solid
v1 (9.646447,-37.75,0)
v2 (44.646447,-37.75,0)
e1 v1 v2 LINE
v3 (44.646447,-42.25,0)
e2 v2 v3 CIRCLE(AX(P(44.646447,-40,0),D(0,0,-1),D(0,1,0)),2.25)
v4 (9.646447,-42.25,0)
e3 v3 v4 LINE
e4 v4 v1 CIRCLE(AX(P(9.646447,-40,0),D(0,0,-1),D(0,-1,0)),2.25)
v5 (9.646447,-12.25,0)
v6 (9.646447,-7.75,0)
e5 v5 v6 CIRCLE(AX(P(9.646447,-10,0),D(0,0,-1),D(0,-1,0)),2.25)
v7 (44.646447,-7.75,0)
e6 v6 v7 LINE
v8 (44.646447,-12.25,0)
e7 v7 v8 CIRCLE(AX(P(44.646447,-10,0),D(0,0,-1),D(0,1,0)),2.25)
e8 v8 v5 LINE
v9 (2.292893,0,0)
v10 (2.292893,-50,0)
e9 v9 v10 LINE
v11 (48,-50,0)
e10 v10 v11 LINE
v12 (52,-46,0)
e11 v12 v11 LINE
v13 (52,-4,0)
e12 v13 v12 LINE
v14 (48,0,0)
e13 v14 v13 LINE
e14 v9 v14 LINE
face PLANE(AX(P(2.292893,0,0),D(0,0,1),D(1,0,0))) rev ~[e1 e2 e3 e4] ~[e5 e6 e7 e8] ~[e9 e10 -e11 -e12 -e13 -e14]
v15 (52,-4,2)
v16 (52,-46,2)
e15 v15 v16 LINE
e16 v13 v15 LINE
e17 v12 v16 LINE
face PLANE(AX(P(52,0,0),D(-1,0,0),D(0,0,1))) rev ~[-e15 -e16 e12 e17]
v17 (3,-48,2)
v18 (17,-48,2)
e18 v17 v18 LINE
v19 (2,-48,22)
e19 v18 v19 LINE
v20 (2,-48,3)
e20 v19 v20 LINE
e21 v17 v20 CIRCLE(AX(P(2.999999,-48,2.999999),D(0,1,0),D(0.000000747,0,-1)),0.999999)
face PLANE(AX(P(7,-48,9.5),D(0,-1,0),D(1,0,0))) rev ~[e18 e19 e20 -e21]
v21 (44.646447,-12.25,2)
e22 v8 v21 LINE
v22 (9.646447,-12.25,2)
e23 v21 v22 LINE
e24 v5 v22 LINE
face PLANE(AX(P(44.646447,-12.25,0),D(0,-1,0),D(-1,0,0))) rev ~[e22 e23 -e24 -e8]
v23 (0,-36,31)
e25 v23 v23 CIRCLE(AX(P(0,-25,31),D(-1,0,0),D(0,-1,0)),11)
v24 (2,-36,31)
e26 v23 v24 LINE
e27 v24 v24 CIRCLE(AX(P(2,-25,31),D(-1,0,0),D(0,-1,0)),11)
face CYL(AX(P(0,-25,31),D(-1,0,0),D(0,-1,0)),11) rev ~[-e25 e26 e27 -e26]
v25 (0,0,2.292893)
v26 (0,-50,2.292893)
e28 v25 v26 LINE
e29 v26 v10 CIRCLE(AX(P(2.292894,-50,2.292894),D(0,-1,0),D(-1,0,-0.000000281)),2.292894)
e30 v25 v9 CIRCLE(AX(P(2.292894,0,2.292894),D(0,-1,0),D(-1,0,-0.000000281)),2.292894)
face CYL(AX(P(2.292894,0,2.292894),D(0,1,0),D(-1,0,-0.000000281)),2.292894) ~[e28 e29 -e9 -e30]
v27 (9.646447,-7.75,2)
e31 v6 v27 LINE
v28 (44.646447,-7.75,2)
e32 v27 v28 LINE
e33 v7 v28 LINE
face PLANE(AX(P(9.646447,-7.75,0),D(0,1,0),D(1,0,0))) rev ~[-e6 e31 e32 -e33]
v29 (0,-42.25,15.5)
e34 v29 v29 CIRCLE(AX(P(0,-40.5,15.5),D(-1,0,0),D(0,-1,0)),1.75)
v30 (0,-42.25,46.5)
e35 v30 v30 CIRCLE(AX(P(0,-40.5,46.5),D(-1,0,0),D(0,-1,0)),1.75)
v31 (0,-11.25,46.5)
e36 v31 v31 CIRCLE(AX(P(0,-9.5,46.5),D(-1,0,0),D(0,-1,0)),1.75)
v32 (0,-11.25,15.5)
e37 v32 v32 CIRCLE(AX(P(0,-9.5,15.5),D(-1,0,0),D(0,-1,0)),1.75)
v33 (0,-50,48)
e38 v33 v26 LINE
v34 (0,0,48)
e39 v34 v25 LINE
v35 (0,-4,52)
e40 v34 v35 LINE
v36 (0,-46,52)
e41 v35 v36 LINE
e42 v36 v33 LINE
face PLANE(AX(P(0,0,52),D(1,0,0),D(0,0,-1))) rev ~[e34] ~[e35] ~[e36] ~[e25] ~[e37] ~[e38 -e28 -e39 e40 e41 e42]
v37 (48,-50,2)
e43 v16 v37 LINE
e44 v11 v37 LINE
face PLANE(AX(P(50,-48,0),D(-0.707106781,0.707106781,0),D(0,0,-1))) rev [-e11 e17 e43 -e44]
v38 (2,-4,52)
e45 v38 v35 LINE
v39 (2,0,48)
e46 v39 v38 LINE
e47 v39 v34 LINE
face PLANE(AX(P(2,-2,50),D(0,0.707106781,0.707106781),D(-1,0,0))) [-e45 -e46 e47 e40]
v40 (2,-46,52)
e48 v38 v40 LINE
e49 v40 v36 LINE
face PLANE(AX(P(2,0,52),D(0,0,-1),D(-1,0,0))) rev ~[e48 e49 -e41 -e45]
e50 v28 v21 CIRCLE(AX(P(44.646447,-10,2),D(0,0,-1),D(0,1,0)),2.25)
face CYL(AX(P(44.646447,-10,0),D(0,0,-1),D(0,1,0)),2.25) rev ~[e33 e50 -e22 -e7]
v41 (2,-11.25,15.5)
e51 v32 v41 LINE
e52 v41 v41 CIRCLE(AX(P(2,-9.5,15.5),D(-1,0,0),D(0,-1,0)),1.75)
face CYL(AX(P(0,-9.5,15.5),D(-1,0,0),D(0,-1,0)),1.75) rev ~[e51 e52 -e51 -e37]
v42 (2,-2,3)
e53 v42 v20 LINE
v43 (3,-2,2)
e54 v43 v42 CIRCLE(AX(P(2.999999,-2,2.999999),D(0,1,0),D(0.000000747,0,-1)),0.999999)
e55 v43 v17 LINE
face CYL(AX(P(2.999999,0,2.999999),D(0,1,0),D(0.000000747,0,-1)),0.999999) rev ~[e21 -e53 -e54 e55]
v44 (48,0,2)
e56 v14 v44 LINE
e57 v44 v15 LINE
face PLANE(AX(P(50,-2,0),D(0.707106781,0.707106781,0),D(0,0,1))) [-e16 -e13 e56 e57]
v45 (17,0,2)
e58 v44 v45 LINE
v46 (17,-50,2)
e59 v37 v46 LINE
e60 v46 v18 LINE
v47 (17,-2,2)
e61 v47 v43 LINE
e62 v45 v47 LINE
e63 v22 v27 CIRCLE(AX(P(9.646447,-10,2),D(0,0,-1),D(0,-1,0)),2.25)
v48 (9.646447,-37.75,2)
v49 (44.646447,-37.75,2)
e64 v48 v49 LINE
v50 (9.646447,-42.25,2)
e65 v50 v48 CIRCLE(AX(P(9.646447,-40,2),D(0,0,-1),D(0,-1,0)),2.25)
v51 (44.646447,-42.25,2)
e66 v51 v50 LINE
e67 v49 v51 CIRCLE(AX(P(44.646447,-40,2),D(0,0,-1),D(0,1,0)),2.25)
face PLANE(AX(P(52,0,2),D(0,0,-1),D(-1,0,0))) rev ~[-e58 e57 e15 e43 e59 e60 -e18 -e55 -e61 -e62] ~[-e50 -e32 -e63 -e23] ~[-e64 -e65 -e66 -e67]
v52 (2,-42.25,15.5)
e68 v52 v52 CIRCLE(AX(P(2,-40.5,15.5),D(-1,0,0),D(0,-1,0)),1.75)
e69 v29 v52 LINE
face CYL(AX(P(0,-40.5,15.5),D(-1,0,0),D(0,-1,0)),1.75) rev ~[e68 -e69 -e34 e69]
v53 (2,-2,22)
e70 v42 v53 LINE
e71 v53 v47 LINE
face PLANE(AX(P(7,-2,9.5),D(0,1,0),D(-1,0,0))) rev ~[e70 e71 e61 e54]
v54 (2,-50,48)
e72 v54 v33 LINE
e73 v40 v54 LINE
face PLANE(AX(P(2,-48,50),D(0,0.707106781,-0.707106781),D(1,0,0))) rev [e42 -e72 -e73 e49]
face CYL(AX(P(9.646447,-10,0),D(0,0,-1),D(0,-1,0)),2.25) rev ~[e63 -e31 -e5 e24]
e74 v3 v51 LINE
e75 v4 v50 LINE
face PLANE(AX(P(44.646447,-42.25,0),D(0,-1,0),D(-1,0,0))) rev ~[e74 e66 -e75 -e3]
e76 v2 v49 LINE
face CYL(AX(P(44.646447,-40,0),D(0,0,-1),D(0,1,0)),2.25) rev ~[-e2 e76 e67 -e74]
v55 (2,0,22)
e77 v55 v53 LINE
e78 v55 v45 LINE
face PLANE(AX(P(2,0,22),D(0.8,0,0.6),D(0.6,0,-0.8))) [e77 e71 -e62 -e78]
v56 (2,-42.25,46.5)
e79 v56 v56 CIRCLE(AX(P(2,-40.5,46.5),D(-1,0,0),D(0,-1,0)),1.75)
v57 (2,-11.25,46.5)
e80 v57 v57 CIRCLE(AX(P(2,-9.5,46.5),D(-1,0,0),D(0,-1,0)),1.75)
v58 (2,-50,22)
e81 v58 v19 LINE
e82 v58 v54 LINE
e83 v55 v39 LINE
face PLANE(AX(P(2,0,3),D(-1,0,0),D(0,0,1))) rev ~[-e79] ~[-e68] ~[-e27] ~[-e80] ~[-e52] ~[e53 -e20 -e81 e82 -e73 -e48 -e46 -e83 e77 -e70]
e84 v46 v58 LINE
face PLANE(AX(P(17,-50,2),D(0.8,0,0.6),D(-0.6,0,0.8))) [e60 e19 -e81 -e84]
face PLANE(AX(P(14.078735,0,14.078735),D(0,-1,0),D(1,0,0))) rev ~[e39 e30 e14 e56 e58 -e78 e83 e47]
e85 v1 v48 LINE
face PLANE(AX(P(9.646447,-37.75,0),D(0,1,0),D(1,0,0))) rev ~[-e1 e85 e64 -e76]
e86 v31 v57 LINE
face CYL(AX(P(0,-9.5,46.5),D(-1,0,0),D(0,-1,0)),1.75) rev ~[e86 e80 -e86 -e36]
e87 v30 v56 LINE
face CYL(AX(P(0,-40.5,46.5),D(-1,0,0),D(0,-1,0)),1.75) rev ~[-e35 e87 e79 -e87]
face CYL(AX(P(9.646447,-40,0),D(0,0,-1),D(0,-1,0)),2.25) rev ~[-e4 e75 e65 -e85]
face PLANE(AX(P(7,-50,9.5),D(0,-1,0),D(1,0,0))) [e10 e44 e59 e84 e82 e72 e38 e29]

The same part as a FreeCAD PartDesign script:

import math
import FreeCAD as App
import Part
import Sketcher
Q = App.Units.Quantity


def edges_at(feature, points):
    """Names of the edges that pass closest to the given points."""
    edges = feature.Shape.Edges
    near = lambda p: min(range(len(edges)), key=lambda i: edges[i].distToShape(Part.Vertex(*p))[0])
    return sorted({f"Edge{near(p) + 1}" for p in points})


def add_polygon(sketch, points):
    """Adds a closed chain of lines whose ends are joined by coincident constraints."""
    first, n = sketch.GeometryCount, len(points)
    for a, b in zip(points, points[1:] + points[:1]):
        sketch.addGeometry(Part.LineSegment(App.Vector(*a, 0), App.Vector(*b, 0)), False)
    for i in range(n):
        sketch.addConstraint(Sketcher.Constraint("Coincident", first + i, 2, first + (i + 1) % n, 1))

doc = App.newDocument("Part")
body = doc.addObject("PartDesign::Body", "Body")

# Sketch on XZ plane
sketch1 = body.newObject("Sketcher::SketchObject", "Sketch")
sketch1.AttachmentSupport = (doc.getObject("XZ_Plane"), [""])
sketch1.MapMode = "FlatFace"
sketch1.addGeometry(Part.LineSegment(App.Vector(2, 52, 0), App.Vector(0, 52, 0)), False)
sketch1.addGeometry(Part.LineSegment(App.Vector(0, 52, 0), App.Vector(0, 2.3, 0)), False)
sketch1.addGeometry(Part.ArcOfCircle(Part.Circle(App.Vector(2.3, 2.3, 0), App.Vector(0, 0, 1), 2.3), math.radians(-180), math.radians(-90)), False)
sketch1.addGeometry(Part.LineSegment(App.Vector(2.3, 0, 0), App.Vector(52, 0, 0)), False)
sketch1.addGeometry(Part.LineSegment(App.Vector(52, 0, 0), App.Vector(52, 2, 0)), False)
sketch1.addGeometry(Part.LineSegment(App.Vector(52, 2, 0), App.Vector(3, 2, 0)), False)
sketch1.addGeometry(Part.ArcOfCircle(Part.Circle(App.Vector(3, 3, 0), App.Vector(0, 0, 1), 1), math.radians(180), math.radians(270)), False)
sketch1.addGeometry(Part.LineSegment(App.Vector(2, 3, 0), App.Vector(2, 52, 0)), False)
sketch1.addConstraint(Sketcher.Constraint("Coincident", 0, 2, 1, 1))
sketch1.addConstraint(Sketcher.Constraint("Tangent", 1, 2, 2, 1))
sketch1.addConstraint(Sketcher.Constraint("Tangent", 2, 2, 3, 1))
sketch1.addConstraint(Sketcher.Constraint("Coincident", 3, 2, 4, 1))
sketch1.addConstraint(Sketcher.Constraint("Coincident", 4, 2, 5, 1))
sketch1.addConstraint(Sketcher.Constraint("Tangent", 5, 2, 6, 2))
sketch1.addConstraint(Sketcher.Constraint("Tangent", 6, 1, 7, 1))
sketch1.addConstraint(Sketcher.Constraint("Coincident", 7, 2, 0, 1))
sketch1.addConstraint(Sketcher.Constraint("Horizontal", 0))
sketch1.addConstraint(Sketcher.Constraint("Vertical", 1))
sketch1.addConstraint(Sketcher.Constraint("Horizontal", 3))
sketch1.addConstraint(Sketcher.Constraint("Vertical", 4))
sketch1.addConstraint(Sketcher.Constraint("Horizontal", 5))
sketch1.addConstraint(Sketcher.Constraint("Vertical", 7))
sketch1.addConstraint(Sketcher.Constraint("PointOnObject", 0, 2, -2))
sketch1.addConstraint(Sketcher.Constraint("PointOnObject", 2, 2, -1))
sketch1.addConstraint(Sketcher.Constraint("Equal", 3, 1))
sketch1.addConstraint(Sketcher.Constraint("Equal", 0, 4))
sketch1.addConstraint(Sketcher.Constraint("Radius", 6, Q("0.999999 mm")))
sketch1.addConstraint(Sketcher.Constraint("DistanceX", 0, 2, 0, 1, Q("2 mm")))
sketch1.addConstraint(Sketcher.Constraint("DistanceX", 5, 2, 5, 1, Q("49 mm")))
sketch1.addConstraint(Sketcher.Constraint("Radius", 2, Q("2.292894 mm")))
pad1 = body.newObject("PartDesign::Pad", "Pad")
pad1.Profile = sketch1
pad1.Length = 50

# Sketch on XZ plane
sketch2 = body.newObject("Sketcher::SketchObject", "Sketch001")
sketch2.AttachmentSupport = (doc.getObject("XZ_Plane"), [""])
sketch2.MapMode = "FlatFace"
sketch2.AttachmentOffset = App.Placement(App.Vector(0, 0, 50), App.Rotation())
add_polygon(sketch2, [(17, 2), (2, 22), (2, 2)])  # lines 0-2
sketch2.addConstraint(Sketcher.Constraint("Vertical", 1))
sketch2.addConstraint(Sketcher.Constraint("Horizontal", 2))
sketch2.addConstraint(Sketcher.Constraint("DistanceX", 2, 1, 2, 2, Q("15 mm")))
sketch2.addConstraint(Sketcher.Constraint("DistanceY", 1, 2, 1, 1, Q("20 mm")))
sketch2.addConstraint(Sketcher.Constraint("DistanceX", -1, 1, 0, 2, Q("2 mm")))
sketch2.addConstraint(Sketcher.Constraint("DistanceY", -1, 1, 0, 2, Q("22 mm")))
pad2 = body.newObject("PartDesign::Pad", "Pad001")
pad2.Profile = sketch2
pad2.Length = 2
pad2.Reversed = True

# Sketch on XZ plane
sketch3 = body.newObject("Sketcher::SketchObject", "Sketch002")
sketch3.AttachmentSupport = (doc.getObject("XZ_Plane"), [""])
sketch3.MapMode = "FlatFace"
add_polygon(sketch3, [(2, 2), (2, 22), (17, 2)])  # lines 0-2
sketch3.addConstraint(Sketcher.Constraint("Vertical", 0))
sketch3.addConstraint(Sketcher.Constraint("Horizontal", 2))
sketch3.addConstraint(Sketcher.Constraint("DistanceX", 2, 2, 2, 1, Q("15 mm")))
sketch3.addConstraint(Sketcher.Constraint("DistanceY", 0, 1, 0, 2, Q("20 mm")))
sketch3.addConstraint(Sketcher.Constraint("DistanceX", -1, 1, 0, 2, Q("2 mm")))
sketch3.addConstraint(Sketcher.Constraint("DistanceY", -1, 1, 0, 2, Q("22 mm")))
pad3 = body.newObject("PartDesign::Pad", "Pad002")
pad3.Profile = sketch3
pad3.Length = 2

# Sketch on XY plane
sketch4 = body.newObject("Sketcher::SketchObject", "Sketch003")
sketch4.AttachmentSupport = (doc.getObject("XY_Plane"), [""])
sketch4.MapMode = "FlatFace"
sketch4.addGeometry(Part.ArcOfCircle(Part.Circle(App.Vector(44.6, -40, 0), App.Vector(0, 0, 1), 2.2), math.radians(-90), math.radians(90)), False)
sketch4.addGeometry(Part.LineSegment(App.Vector(44.6, -42.2, 0), App.Vector(9.6, -42.2, 0)), False)
sketch4.addGeometry(Part.ArcOfCircle(Part.Circle(App.Vector(9.6, -40, 0), App.Vector(0, 0, 1), 2.2), math.radians(90), math.radians(270)), False)
sketch4.addGeometry(Part.LineSegment(App.Vector(9.6, -37.8, 0), App.Vector(44.6, -37.8, 0)), False)
sketch4.addGeometry(Part.ArcOfCircle(Part.Circle(App.Vector(9.6, -10, 0), App.Vector(0, 0, 1), 2.2), math.radians(90), math.radians(270)), False)
sketch4.addGeometry(Part.LineSegment(App.Vector(9.6, -7.8, 0), App.Vector(44.6, -7.8, 0)), False)
sketch4.addGeometry(Part.ArcOfCircle(Part.Circle(App.Vector(44.6, -10, 0), App.Vector(0, 0, 1), 2.2), math.radians(-90), math.radians(90)), False)
sketch4.addGeometry(Part.LineSegment(App.Vector(44.6, -12.2, 0), App.Vector(9.6, -12.2, 0)), False)
sketch4.addConstraint(Sketcher.Constraint("Tangent", 0, 1, 1, 1))
sketch4.addConstraint(Sketcher.Constraint("Tangent", 1, 2, 2, 2))
sketch4.addConstraint(Sketcher.Constraint("Tangent", 2, 1, 3, 1))
sketch4.addConstraint(Sketcher.Constraint("Tangent", 3, 2, 0, 2))
sketch4.addConstraint(Sketcher.Constraint("Tangent", 4, 1, 5, 1))
sketch4.addConstraint(Sketcher.Constraint("Tangent", 5, 2, 6, 2))
sketch4.addConstraint(Sketcher.Constraint("Tangent", 6, 1, 7, 1))
sketch4.addConstraint(Sketcher.Constraint("Tangent", 7, 2, 4, 2))
sketch4.addConstraint(Sketcher.Constraint("Horizontal", 1))
sketch4.addConstraint(Sketcher.Constraint("Horizontal", 3))
sketch4.addConstraint(Sketcher.Constraint("Horizontal", 5))
sketch4.addConstraint(Sketcher.Constraint("Horizontal", 7))
sketch4.addConstraint(Sketcher.Constraint("Equal", 2, 4))
sketch4.addConstraint(Sketcher.Constraint("Vertical", 2, 3, 4, 3))
sketch4.addConstraint(Sketcher.Constraint("Vertical", 0, 3, 6, 3))
sketch4.addConstraint(Sketcher.Constraint("DistanceX", 1, 2, 1, 1, Q("35 mm")))
sketch4.addConstraint(Sketcher.Constraint("Radius", 0, Q("2.25 mm")))
sketch4.addConstraint(Sketcher.Constraint("DistanceY", 0, 3, -1, 1, Q("40 mm")))
sketch4.addConstraint(Sketcher.Constraint("DistanceY", 4, 3, -1, 1, Q("10 mm")))
sketch4.addConstraint(Sketcher.Constraint("DistanceX", -1, 1, 0, 3, Q("44.646447 mm")))
pocket1 = body.newObject("PartDesign::Pocket", "Pocket")
pocket1.Profile = sketch4
pocket1.Type = "ThroughAll"
pocket1.Reversed = True

# Sketch on YZ plane
sketch5 = body.newObject("Sketcher::SketchObject", "Sketch004")
sketch5.AttachmentSupport = (doc.getObject("YZ_Plane"), [""])
sketch5.MapMode = "FlatFace"
sketch5.addGeometry(Part.Circle(App.Vector(-25, 31, 0), App.Vector(0, 0, 1), 11), False)
sketch5.addGeometry(Part.Circle(App.Vector(-9.5, 46.5, 0), App.Vector(0, 0, 1), 1.8), False)
sketch5.addGeometry(Part.Circle(App.Vector(-9.5, 15.5, 0), App.Vector(0, 0, 1), 1.8), False)
sketch5.addGeometry(Part.Circle(App.Vector(-40.5, 15.5, 0), App.Vector(0, 0, 1), 1.8), False)
sketch5.addGeometry(Part.Circle(App.Vector(-40.5, 46.5, 0), App.Vector(0, 0, 1), 1.8), False)
sketch5.addConstraint(Sketcher.Constraint("Equal", 1, 2))
sketch5.addConstraint(Sketcher.Constraint("Equal", 2, 3))
sketch5.addConstraint(Sketcher.Constraint("Equal", 3, 4))
sketch5.addConstraint(Sketcher.Constraint("Horizontal", 2, 3, 3, 3))
sketch5.addConstraint(Sketcher.Constraint("Horizontal", 1, 3, 4, 3))
sketch5.addConstraint(Sketcher.Constraint("Vertical", 1, 3, 2, 3))
sketch5.addConstraint(Sketcher.Constraint("Vertical", 3, 3, 4, 3))
sketch5.addConstraint(Sketcher.Constraint("Diameter", 0, Q("22 mm")))
sketch5.addConstraint(Sketcher.Constraint("Diameter", 1, Q("3.5 mm")))
sketch5.addConstraint(Sketcher.Constraint("DistanceX", 0, 3, -1, 1, Q("25 mm")))
sketch5.addConstraint(Sketcher.Constraint("DistanceY", -1, 1, 0, 3, Q("31 mm")))
sketch5.addConstraint(Sketcher.Constraint("DistanceY", 2, 3, 1, 3, Q("31 mm")))
sketch5.addConstraint(Sketcher.Constraint("DistanceX", 3, 3, 2, 3, Q("31 mm")))
sketch5.addConstraint(Sketcher.Constraint("DistanceX", 1, 3, -1, 1, Q("9.5 mm")))
sketch5.addConstraint(Sketcher.Constraint("DistanceY", -1, 1, 1, 3, Q("46.5 mm")))
pocket2 = body.newObject("PartDesign::Pocket", "Pocket001")
pocket2.Profile = sketch5
pocket2.Type = "ThroughAll"
pocket2.Reversed = True
doc.recompute()

chamfer = body.newObject("PartDesign::Chamfer", "Chamfer")
chamfer.Base = (pocket2, edges_at(pocket2, [
    (1, 0, 52),
    (1, -50, 52),
    (52, 0, 1),
    (52, -50, 1),
]))
chamfer.Size = 4

doc.recompute()
